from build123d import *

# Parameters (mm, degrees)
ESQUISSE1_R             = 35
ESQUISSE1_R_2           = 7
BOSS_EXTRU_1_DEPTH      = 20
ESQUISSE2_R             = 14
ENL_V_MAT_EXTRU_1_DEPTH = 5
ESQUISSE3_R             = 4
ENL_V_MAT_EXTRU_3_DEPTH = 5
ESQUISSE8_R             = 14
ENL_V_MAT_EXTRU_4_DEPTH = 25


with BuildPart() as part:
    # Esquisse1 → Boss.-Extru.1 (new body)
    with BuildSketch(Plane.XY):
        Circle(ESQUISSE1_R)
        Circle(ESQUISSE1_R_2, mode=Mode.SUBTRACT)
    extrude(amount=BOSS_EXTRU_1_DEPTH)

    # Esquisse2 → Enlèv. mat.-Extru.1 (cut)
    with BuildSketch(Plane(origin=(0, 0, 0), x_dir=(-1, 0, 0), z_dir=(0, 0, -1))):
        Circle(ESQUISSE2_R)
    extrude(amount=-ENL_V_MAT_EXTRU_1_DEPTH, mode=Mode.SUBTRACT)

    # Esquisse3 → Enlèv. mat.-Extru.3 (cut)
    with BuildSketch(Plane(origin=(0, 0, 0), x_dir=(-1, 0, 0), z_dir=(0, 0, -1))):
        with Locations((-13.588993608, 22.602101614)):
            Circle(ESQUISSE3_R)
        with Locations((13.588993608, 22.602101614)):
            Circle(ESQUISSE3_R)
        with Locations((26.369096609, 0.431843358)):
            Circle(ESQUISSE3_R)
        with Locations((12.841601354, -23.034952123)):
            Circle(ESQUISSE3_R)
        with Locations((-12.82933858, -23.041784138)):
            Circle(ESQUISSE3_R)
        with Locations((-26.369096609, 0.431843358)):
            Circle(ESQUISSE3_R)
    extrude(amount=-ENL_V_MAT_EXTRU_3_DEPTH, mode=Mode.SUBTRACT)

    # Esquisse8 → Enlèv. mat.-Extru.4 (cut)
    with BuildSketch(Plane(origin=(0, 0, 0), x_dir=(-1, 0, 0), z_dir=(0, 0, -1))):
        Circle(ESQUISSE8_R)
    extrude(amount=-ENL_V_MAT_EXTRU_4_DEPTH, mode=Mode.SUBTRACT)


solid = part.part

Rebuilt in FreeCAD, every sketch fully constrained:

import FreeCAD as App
import Part
import Sketcher

V = App.Vector

doc = App.newDocument("Part")
body = doc.addObject("PartDesign::Body", "Body")

# Sketch on XY plane
sketch1 = body.newObject("Sketcher::SketchObject", "Sketch")
sketch1.AttachmentSupport = (doc.getObject("XY_Plane"), [""])
sketch1.MapMode = "FlatFace"
sketch1.addGeometry(Part.Circle(V(0, 0, 0), V(0, 0, 1), 35), False)
sketch1.addGeometry(Part.Circle(V(0, 0, 0), V(0, 0, 1), 7), False)
sketch1.addConstraint(Sketcher.Constraint("Coincident", 0, 3, -1, 1))
sketch1.addConstraint(Sketcher.Constraint("Coincident", 1, 3, -1, 1))
sketch1.addConstraint(Sketcher.Constraint("Diameter", 0, 70.0))
sketch1.addConstraint(Sketcher.Constraint("Diameter", 1, 14.0))
pad1 = body.newObject("PartDesign::Pad", "Pad")
pad1.Profile = sketch1
pad1.Length = 20

# Sketch on XY plane
sketch2 = body.newObject("Sketcher::SketchObject", "Sketch001")
sketch2.AttachmentSupport = (doc.getObject("XY_Plane"), [""])
sketch2.MapMode = "FlatFace"
sketch2.addGeometry(Part.Circle(V(0, 0, 0), V(0, 0, 1), 14), False)
sketch2.addConstraint(Sketcher.Constraint("Coincident", 0, 3, -1, 1))
sketch2.addConstraint(Sketcher.Constraint("Diameter", 0, 28.0))
pocket1 = body.newObject("PartDesign::Pocket", "Pocket")
pocket1.Profile = sketch2
pocket1.Length = 5
pocket1.Reversed = True

# Sketch on XY plane
sketch3 = body.newObject("Sketcher::SketchObject", "Sketch002")
sketch3.AttachmentSupport = (doc.getObject("XY_Plane"), [""])
sketch3.MapMode = "FlatFace"
sketch3.addGeometry(Part.Circle(V(13.6, 22.6, 0), V(0, 0, 1), 4), False)
sketch3.addGeometry(Part.Circle(V(-13.6, 22.6, 0), V(0, 0, 1), 4), False)
sketch3.addGeometry(Part.Circle(V(-26.4, 0.4, 0), V(0, 0, 1), 4), False)
sketch3.addGeometry(Part.Circle(V(-12.8, -23, 0), V(0, 0, 1), 4), False)
sketch3.addGeometry(Part.Circle(V(12.8, -23, 0), V(0, 0, 1), 4), False)
sketch3.addGeometry(Part.Circle(V(26.4, 0.4, 0), V(0, 0, 1), 4), False)
sketch3.addConstraint(Sketcher.Constraint("Equal", 0, 1))
sketch3.addConstraint(Sketcher.Constraint("Equal", 1, 2))
sketch3.addConstraint(Sketcher.Constraint("Equal", 2, 3))
sketch3.addConstraint(Sketcher.Constraint("Equal", 3, 4))
sketch3.addConstraint(Sketcher.Constraint("Equal", 4, 5))
sketch3.addConstraint(Sketcher.Constraint("Symmetric", 0, 3, 1, 3, -2))
sketch3.addConstraint(Sketcher.Constraint("Symmetric", 2, 3, 5, 3, -2))
sketch3.addConstraint(Sketcher.Constraint("Diameter", 0, 8.0))
sketch3.addConstraint(Sketcher.Constraint("DistanceY", -1, 1, 0, 3, 22.602102))
sketch3.addConstraint(Sketcher.Constraint("DistanceX", 3, 3, -1, 1, 12.841601))
sketch3.addConstraint(Sketcher.Constraint("DistanceX", -1, 1, 4, 3, 12.829339))
sketch3.addConstraint(Sketcher.Constraint("DistanceY", 2, 3, 1, 3, 22.170258))
sketch3.addConstraint(Sketcher.Constraint("DistanceX", 2, 3, 0, 3, 39.95809))
sketch3.addConstraint(Sketcher.Constraint("DistanceX", 4, 3, 5, 3, 13.539758))
sketch3.addConstraint(Sketcher.Constraint("DistanceY", 3, 3, -1, 1, 23.034952))
sketch3.addConstraint(Sketcher.Constraint("DistanceY", 4, 3, -1, 1, 23.041784))
pocket2 = body.newObject("PartDesign::Pocket", "Pocket001")
pocket2.Profile = sketch3
pocket2.Length = 5
pocket2.Reversed = True

# Sketch on XY plane
sketch4 = body.newObject("Sketcher::SketchObject", "Sketch003")
sketch4.AttachmentSupport = (doc.getObject("XY_Plane"), [""])
sketch4.MapMode = "FlatFace"
sketch4.addGeometry(Part.Circle(V(0, 0, 0), V(0, 0, 1), 14), False)
sketch4.addConstraint(Sketcher.Constraint("Coincident", 0, 3, -1, 1))
sketch4.addConstraint(Sketcher.Constraint("Diameter", 0, 28.0))
pocket3 = body.newObject("PartDesign::Pocket", "Pocket002")
pocket3.Profile = sketch4
pocket3.Length = 25
pocket3.Reversed = True

doc.recompute()
